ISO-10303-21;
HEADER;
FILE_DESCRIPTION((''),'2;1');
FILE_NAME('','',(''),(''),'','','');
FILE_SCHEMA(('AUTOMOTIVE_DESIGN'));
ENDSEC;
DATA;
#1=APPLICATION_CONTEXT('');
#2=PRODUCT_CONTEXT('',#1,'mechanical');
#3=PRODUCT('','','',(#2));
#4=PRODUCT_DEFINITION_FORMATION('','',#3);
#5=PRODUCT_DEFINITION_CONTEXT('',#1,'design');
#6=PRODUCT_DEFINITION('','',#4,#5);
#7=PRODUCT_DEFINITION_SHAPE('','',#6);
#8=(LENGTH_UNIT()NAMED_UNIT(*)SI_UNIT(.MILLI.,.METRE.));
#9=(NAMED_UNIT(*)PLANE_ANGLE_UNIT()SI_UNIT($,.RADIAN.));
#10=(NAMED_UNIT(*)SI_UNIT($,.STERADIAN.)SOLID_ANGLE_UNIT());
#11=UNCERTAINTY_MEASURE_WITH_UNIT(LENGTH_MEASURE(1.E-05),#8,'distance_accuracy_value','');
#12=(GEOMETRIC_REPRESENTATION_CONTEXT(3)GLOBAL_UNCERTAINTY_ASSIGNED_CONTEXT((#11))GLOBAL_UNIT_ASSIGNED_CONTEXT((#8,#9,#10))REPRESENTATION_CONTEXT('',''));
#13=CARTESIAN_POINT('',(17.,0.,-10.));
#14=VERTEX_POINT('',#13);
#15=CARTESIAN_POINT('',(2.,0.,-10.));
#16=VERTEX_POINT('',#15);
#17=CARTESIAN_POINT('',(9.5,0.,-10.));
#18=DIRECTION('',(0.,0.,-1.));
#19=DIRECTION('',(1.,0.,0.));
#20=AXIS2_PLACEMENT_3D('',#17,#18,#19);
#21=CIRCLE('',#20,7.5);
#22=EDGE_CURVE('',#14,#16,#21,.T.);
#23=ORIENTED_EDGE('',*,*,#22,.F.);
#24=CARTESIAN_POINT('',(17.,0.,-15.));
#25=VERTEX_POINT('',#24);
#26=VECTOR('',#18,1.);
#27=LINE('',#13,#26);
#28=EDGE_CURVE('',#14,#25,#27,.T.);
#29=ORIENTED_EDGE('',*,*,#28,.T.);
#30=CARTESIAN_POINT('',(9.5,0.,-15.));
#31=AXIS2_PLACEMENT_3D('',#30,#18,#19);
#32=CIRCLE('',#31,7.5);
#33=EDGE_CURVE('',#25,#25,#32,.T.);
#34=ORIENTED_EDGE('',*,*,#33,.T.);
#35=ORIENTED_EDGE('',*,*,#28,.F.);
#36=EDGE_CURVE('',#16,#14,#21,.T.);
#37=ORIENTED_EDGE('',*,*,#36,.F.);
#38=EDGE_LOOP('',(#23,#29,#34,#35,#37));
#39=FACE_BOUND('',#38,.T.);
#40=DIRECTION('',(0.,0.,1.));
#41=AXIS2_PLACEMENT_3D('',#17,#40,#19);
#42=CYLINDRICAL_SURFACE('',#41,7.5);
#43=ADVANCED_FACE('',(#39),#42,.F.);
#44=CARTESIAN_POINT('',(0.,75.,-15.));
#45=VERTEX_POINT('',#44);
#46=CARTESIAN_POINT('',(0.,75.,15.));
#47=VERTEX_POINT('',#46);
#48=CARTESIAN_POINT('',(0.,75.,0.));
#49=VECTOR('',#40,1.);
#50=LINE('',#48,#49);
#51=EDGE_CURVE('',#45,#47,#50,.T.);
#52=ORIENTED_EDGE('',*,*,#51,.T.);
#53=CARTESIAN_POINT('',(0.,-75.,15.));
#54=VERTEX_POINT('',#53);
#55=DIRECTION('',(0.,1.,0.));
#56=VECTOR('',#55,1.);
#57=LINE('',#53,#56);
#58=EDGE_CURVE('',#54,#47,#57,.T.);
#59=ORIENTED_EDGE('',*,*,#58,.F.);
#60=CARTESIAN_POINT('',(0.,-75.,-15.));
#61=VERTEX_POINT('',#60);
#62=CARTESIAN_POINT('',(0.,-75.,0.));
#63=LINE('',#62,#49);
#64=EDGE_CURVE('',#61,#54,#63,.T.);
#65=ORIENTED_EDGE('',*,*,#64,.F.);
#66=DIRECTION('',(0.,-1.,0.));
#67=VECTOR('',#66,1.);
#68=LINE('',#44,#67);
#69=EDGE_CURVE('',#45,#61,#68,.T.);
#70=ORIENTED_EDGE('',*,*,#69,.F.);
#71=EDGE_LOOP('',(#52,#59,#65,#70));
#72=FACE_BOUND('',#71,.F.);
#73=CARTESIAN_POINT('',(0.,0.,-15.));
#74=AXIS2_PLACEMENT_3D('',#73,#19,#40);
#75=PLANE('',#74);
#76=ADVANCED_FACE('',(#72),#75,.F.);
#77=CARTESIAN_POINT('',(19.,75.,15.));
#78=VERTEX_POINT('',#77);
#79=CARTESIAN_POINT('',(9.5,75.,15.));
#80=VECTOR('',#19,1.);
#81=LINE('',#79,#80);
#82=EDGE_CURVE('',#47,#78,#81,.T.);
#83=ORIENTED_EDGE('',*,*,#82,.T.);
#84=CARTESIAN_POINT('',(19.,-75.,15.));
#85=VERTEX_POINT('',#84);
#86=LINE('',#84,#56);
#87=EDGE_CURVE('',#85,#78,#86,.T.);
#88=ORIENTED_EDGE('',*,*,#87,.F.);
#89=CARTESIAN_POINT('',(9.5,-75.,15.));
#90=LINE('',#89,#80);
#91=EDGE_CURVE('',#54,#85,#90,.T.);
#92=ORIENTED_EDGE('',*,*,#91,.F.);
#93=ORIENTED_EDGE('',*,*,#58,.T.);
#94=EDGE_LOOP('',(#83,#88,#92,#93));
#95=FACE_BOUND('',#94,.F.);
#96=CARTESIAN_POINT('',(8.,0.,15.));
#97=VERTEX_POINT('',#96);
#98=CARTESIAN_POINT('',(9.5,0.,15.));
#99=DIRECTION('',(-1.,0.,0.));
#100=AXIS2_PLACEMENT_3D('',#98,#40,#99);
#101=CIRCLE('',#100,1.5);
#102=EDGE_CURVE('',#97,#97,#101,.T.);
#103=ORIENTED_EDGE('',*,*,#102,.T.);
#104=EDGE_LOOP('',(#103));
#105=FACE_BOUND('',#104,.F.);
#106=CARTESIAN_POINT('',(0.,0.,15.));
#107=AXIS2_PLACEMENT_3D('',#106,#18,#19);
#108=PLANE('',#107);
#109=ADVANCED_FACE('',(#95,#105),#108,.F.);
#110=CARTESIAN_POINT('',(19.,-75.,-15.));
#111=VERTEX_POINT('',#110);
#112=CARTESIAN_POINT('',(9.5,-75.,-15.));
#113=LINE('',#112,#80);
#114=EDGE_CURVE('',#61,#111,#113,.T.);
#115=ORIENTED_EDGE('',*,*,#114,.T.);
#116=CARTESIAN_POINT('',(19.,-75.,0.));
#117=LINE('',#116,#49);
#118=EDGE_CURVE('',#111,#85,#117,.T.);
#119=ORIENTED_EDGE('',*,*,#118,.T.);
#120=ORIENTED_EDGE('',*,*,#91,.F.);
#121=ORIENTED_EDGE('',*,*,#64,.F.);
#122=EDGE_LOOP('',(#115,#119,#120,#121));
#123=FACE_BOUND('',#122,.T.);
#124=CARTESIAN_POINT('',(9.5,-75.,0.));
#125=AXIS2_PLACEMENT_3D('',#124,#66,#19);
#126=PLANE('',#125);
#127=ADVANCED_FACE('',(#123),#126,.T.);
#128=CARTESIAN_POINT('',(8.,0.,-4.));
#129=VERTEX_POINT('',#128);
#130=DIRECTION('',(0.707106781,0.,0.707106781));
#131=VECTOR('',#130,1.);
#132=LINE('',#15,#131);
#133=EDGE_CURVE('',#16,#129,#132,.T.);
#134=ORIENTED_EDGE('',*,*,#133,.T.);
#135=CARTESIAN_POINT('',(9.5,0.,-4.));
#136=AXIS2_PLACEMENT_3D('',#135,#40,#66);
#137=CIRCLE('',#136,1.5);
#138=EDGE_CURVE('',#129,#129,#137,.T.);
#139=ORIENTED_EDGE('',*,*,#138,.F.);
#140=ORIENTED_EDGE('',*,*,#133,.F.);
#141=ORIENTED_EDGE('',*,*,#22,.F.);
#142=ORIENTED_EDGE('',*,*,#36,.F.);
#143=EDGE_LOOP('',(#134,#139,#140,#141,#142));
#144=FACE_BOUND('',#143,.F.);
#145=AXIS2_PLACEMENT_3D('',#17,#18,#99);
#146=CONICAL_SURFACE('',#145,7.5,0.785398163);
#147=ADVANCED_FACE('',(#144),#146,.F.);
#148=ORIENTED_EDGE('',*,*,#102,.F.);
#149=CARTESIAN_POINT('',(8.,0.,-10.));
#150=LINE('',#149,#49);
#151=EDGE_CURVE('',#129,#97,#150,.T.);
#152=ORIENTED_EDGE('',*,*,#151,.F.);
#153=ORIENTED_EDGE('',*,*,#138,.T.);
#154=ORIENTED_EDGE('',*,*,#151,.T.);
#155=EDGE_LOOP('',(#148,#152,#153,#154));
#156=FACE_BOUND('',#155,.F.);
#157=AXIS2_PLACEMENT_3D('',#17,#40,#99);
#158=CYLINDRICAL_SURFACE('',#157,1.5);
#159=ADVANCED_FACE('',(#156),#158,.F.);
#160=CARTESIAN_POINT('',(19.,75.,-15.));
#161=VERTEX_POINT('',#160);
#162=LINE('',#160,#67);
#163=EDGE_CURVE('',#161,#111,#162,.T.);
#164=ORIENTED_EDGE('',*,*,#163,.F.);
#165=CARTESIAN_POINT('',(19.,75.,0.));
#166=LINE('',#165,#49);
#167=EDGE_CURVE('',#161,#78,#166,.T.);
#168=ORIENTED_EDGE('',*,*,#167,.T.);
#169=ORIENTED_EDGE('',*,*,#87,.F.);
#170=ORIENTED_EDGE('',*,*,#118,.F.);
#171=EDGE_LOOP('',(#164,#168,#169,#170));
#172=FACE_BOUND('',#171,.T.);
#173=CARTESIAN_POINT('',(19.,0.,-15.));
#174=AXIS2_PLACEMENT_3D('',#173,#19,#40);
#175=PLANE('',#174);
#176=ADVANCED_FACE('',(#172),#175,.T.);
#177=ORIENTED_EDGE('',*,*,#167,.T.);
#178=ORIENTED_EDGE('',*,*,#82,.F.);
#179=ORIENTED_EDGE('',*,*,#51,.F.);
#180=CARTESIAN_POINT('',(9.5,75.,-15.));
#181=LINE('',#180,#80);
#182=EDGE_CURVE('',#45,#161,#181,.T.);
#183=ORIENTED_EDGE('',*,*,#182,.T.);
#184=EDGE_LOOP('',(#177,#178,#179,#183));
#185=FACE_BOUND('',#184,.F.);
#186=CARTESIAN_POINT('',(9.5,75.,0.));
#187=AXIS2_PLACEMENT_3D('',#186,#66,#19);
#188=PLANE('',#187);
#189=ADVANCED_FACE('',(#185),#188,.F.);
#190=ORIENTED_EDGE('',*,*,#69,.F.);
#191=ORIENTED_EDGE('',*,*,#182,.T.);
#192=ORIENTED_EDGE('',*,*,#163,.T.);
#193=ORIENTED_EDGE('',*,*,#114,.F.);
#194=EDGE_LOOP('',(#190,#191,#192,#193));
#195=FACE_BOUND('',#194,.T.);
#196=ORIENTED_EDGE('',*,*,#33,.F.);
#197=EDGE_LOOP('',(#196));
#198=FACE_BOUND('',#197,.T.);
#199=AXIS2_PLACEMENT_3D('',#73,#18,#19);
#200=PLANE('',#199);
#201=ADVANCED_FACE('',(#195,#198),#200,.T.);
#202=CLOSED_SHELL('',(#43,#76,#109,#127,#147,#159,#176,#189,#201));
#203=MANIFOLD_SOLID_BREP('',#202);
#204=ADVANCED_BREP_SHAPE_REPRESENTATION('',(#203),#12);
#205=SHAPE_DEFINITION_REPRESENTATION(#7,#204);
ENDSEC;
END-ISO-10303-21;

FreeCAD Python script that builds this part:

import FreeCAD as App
import Part
import Sketcher

V = App.Vector


def add_polygon(sketch, points):
    """Adds a closed chain of lines whose ends are joined by coincident constraints."""
    first, n = sketch.GeometryCount, len(points)
    for a, b in zip(points, points[1:] + points[:1]):
        sketch.addGeometry(Part.LineSegment(App.Vector(*a, 0), App.Vector(*b, 0)), False)
    for i in range(n):
        sketch.addConstraint(Sketcher.Constraint("Coincident", first + i, 2, first + (i + 1) % n, 1))

doc = App.newDocument("Part")
params = doc.addObject("Spreadsheet::Sheet", "Params")
for row, (alias, value) in enumerate([
    ("sketch1_width", "19 mm"),
    ("sketch1_height", "30 mm"),
    ("pad1_length", "150 mm"),
    ("sketch2_diameter", "15 mm"),
    ("sketch3_diameter", "3 mm"),
    ("hole_diameter", "3 mm"),
    ("hole_csink_diameter", "15 mm"),
], start=1):
    params.set(f"A{row}", alias)
    params.set(f"B{row}", "=" + value)
    params.setAlias(f"B{row}", alias)

body = doc.addObject("PartDesign::Body", "Body")

# Sketch on XZ plane
sketch1 = body.newObject("Sketcher::SketchObject", "Sketch")
sketch1.AttachmentSupport = (doc.getObject("XZ_Plane"), [""])
sketch1.MapMode = "FlatFace"
add_polygon(sketch1, [(0, 15), (0, -15), (19, -15), (19, 15)])  # lines 0-3
sketch1.addConstraint([
    Sketcher.Constraint("Vertical", 0),
    Sketcher.Constraint("Horizontal", 1),
    Sketcher.Constraint("Vertical", 2),
    Sketcher.Constraint("Horizontal", 3),
    Sketcher.Constraint("Symmetric", 0, 2, 3, 2, -1, 1),
    Sketcher.Constraint("DistanceX", 1, 1, 1, 2, 19.0),
    Sketcher.Constraint("DistanceY", 0, 2, 0, 1, 30.0),
])
sketch1.setExpression("Constraints[9]", "Params.sketch1_width")
sketch1.setExpression("Constraints[10]", "Params.sketch1_height")
pad1 = body.newObject("PartDesign::Pad", "Pad")
pad1.Profile = sketch1
pad1.setExpression("Length", "Params.pad1_length")
pad1.Midplane = True

# Sketch on XY plane
sketch2 = body.newObject("Sketcher::SketchObject", "Sketch001")
sketch2.AttachmentSupport = (doc.getObject("XY_Plane"), [""])
sketch2.MapMode = "FlatFace"
sketch2.AttachmentOffset = App.Placement(V(0, 0, -10), App.Rotation())
sketch2.addGeometry(Part.Circle(V(10, 0, 0), V(0, 0, 1), 8), False)
sketch2.addConstraint([
    Sketcher.Constraint("PointOnObject", 0, 3, -1),
    Sketcher.Constraint("Diameter", 0, 15.0),
    Sketcher.Constraint("DistanceX", -1, 1, 0, 3, 9.5),
])
sketch2.setExpression("Constraints[1]", "Params.sketch2_diameter")
pocket1 = body.newObject("PartDesign::Pocket", "Pocket")
pocket1.Profile = sketch2
pocket1.Type = "ThroughAll"

# Sketch on XY plane
sketch3 = body.newObject("Sketcher::SketchObject", "Sketch002")
sketch3.AttachmentSupport = (doc.getObject("XY_Plane"), [""])
sketch3.MapMode = "FlatFace"
sketch3.AttachmentOffset = App.Placement(V(0, 0, -10), App.Rotation())
sketch3.addGeometry(Part.Circle(V(9.5, 0, 0), V(0, 0, 1), 1.5), False)
sketch3.addConstraint([
    Sketcher.Constraint("PointOnObject", 0, 3, -1),
    Sketcher.Constraint("Diameter", 0, 3.0),
    Sketcher.Constraint("DistanceX", -1, 1, 0, 3, 9.5),
])
sketch3.setExpression("Constraints[1]", "Params.sketch3_diameter")
doc.recompute()
hole = body.newObject("PartDesign::Hole", "Hole")
hole.Profile = sketch3
hole.ThreadType = "None"
hole.setExpression("Diameter", "Params.hole_diameter")
hole.DepthType = "ThroughAll"
hole.HoleCutType = "Countersink"
hole.setExpression("HoleCutDiameter", "Params.hole_csink_diameter")
hole.HoleCutCountersinkAngle = 90
hole.Reversed = True

doc.recompute()
